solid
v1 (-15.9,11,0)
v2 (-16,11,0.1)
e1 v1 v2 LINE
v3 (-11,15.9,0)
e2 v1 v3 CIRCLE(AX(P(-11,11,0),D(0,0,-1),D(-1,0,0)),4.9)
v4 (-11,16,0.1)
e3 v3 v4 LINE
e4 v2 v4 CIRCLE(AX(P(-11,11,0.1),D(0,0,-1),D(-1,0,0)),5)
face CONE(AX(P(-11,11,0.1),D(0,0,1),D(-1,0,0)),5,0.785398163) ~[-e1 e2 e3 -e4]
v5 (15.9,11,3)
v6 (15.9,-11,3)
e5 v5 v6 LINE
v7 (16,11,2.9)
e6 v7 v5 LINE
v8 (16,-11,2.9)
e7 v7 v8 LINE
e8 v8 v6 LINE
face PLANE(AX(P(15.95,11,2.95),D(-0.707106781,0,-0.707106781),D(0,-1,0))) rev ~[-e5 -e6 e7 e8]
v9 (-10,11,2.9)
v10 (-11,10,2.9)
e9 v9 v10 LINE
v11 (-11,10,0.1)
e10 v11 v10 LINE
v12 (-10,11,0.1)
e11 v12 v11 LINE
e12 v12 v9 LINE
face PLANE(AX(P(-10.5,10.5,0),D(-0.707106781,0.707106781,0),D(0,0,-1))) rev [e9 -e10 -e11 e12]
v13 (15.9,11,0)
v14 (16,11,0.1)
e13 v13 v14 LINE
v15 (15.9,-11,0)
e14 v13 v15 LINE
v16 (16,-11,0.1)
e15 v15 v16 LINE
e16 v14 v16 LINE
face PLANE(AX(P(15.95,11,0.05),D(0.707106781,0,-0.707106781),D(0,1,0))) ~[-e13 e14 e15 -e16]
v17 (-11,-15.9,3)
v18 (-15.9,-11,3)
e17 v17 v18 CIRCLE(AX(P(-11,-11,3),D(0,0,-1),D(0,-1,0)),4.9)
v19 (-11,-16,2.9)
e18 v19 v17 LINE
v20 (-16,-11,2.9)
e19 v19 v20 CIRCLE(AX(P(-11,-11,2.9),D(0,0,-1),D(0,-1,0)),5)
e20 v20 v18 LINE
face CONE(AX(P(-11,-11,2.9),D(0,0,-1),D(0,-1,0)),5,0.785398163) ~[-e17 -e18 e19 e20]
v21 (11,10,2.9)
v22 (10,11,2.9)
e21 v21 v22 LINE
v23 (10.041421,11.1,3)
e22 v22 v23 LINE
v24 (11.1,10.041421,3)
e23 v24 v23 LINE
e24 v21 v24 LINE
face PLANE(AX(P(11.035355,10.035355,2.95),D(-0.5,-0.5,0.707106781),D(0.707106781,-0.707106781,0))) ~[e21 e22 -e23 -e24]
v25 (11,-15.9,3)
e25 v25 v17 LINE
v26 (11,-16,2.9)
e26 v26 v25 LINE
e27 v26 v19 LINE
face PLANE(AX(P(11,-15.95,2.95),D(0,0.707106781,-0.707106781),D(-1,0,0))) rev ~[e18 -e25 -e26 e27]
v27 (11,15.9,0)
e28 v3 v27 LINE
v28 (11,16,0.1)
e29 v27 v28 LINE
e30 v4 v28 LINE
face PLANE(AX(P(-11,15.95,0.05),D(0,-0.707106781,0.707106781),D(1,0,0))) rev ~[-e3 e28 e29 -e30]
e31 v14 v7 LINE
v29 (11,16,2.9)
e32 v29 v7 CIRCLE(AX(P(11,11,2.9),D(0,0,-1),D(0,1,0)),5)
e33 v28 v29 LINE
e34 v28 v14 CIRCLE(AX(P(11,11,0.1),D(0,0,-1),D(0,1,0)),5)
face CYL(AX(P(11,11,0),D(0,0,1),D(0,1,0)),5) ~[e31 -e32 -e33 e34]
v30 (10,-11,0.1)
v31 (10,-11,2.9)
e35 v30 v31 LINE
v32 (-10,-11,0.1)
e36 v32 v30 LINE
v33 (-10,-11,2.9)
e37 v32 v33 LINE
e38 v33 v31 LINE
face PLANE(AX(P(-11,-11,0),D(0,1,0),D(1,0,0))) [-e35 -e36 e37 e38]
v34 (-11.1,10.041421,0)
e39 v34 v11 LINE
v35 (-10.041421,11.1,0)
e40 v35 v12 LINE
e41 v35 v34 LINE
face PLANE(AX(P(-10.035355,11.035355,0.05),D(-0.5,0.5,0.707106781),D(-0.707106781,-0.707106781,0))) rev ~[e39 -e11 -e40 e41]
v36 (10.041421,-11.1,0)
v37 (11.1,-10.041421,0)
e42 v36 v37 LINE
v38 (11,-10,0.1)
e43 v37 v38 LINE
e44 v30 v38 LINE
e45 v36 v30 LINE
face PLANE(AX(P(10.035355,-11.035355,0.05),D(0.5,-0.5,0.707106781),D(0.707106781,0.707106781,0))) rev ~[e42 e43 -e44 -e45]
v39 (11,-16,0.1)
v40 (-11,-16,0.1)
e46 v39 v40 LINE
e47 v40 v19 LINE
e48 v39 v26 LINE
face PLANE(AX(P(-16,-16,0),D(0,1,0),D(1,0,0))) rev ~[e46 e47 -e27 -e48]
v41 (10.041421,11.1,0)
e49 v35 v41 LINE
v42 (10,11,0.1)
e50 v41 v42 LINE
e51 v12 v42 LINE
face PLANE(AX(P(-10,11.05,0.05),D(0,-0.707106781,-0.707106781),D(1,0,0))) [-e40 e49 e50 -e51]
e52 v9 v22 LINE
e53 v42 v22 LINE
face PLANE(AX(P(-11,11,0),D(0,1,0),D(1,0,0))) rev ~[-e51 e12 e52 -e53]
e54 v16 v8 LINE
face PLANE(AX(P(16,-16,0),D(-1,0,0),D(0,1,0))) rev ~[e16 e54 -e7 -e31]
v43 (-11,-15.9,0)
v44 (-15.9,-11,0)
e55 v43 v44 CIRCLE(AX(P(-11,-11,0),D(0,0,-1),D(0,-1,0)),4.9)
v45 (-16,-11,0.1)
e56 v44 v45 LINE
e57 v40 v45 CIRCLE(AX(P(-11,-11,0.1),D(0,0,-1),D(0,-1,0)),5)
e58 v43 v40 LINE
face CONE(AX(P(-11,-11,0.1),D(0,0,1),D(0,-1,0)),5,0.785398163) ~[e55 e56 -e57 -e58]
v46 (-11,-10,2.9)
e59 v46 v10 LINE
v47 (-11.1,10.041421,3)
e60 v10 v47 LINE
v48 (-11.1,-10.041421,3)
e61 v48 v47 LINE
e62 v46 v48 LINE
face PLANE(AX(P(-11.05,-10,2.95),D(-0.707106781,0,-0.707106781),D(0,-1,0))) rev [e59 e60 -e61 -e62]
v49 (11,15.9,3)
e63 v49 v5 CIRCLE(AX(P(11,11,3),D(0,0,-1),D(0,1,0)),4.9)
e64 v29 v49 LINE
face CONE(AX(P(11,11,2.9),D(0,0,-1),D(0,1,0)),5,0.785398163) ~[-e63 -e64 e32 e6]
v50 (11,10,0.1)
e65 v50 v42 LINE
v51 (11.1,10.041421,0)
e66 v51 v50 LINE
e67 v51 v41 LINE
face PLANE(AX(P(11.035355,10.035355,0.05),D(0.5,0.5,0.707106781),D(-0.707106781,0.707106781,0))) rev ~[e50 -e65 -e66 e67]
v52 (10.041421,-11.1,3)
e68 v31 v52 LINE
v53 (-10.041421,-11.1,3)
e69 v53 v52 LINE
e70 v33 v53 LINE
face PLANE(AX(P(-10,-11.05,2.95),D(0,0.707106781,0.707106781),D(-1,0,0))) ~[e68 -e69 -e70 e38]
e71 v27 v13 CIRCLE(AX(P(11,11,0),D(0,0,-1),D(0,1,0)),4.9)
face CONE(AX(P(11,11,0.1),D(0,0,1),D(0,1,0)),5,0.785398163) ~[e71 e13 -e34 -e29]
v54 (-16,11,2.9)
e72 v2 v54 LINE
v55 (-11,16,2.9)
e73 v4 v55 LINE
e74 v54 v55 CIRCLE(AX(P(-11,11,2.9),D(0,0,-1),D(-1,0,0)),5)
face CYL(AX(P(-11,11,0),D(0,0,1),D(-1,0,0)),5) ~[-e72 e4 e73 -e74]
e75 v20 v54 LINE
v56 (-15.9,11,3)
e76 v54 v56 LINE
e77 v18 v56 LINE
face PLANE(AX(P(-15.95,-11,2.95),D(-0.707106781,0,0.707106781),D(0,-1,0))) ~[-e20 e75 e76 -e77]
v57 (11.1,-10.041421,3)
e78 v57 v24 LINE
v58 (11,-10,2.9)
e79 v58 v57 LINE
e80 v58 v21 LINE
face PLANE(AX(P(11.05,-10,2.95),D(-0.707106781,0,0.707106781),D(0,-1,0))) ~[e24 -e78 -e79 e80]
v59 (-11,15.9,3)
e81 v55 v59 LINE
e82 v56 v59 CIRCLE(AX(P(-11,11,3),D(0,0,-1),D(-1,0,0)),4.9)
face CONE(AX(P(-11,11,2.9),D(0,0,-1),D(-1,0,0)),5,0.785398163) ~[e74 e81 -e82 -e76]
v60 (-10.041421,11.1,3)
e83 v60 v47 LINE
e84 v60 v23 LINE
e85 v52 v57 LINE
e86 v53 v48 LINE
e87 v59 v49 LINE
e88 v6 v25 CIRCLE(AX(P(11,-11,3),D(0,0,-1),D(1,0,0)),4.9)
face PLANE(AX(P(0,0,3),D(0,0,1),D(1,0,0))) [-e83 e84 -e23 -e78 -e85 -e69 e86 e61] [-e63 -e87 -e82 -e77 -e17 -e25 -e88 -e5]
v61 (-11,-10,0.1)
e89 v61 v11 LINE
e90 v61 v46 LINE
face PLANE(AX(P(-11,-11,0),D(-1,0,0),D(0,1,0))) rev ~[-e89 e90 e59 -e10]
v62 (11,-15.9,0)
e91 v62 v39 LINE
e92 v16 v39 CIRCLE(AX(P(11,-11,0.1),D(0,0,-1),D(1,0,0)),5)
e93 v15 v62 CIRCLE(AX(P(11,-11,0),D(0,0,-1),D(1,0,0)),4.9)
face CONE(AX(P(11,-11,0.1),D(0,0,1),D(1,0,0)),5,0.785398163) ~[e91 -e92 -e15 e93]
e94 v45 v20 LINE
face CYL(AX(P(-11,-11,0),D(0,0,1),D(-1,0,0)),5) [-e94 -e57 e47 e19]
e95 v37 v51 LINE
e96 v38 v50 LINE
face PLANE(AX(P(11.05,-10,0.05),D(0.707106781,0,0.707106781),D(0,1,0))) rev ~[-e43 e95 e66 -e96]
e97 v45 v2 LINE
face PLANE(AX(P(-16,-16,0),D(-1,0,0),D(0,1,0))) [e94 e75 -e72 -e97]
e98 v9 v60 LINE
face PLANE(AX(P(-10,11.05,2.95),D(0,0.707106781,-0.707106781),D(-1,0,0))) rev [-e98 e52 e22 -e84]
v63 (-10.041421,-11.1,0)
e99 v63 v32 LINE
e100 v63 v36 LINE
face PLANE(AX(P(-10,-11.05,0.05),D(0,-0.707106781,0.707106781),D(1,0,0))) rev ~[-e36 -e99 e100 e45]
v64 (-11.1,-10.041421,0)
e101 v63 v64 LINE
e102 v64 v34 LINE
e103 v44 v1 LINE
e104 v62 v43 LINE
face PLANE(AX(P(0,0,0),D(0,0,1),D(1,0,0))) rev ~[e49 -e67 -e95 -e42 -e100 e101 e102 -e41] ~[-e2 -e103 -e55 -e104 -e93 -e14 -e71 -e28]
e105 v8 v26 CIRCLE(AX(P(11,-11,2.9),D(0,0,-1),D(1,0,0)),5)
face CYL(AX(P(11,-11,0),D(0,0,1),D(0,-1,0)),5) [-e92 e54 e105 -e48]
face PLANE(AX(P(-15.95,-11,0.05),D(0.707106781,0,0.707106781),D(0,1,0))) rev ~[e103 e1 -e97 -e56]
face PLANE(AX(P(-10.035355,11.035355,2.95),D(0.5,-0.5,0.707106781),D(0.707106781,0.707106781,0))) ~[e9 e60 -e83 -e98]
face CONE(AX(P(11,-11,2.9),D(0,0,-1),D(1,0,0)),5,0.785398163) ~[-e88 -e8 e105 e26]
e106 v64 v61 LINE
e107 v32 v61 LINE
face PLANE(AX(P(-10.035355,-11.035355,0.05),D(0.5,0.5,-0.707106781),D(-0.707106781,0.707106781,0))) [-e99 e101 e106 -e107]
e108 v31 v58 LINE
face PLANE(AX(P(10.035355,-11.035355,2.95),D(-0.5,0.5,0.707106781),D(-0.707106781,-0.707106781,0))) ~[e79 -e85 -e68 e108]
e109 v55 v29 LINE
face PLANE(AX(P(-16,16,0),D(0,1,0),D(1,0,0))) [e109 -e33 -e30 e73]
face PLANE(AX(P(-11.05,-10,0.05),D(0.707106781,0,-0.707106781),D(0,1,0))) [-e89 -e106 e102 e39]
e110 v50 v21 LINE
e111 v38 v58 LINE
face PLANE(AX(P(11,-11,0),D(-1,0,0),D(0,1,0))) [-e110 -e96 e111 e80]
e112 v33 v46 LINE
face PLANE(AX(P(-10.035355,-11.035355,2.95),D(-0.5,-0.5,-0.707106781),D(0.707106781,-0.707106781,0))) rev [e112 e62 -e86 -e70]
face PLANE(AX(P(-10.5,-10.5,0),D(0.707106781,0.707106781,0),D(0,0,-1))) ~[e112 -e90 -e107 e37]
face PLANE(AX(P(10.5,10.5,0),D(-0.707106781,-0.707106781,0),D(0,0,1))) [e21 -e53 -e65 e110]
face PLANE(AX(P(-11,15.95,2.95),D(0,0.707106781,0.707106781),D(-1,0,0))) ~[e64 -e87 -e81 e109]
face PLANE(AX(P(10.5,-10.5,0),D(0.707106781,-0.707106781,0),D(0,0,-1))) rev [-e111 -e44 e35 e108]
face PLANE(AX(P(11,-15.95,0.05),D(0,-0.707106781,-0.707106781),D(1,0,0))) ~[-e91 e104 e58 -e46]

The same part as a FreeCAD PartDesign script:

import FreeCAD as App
import Part
import Sketcher


def edges_at(feature, points):
    """Names of the edges that pass closest to the given points."""
    edges = feature.Shape.Edges
    near = lambda p: min(range(len(edges)), key=lambda i: edges[i].distToShape(Part.Vertex(*p))[0])
    return sorted({f"Edge{near(p) + 1}" for p in points})


def add_polygon(sketch, points):
    """Adds a closed chain of lines whose ends are joined by coincident constraints."""
    first, n = sketch.GeometryCount, len(points)
    for a, b in zip(points, points[1:] + points[:1]):
        sketch.addGeometry(Part.LineSegment(App.Vector(*a, 0), App.Vector(*b, 0)), False)
    for i in range(n):
        sketch.addConstraint(Sketcher.Constraint("Coincident", first + i, 2, first + (i + 1) % n, 1))

doc = App.newDocument("Part")
body = doc.addObject("PartDesign::Body", "Body")

sketch1 = body.newObject("Sketcher::SketchObject", "Sketch")
sketch1.AttachmentSupport = (doc.getObject("XY_Plane"), [""])
sketch1.MapMode = "FlatFace"
add_polygon(sketch1, [(-16, 16), (-16, -16), (16, -16), (16, 16)])
add_polygon(sketch1, [(11, -11), (-11, -11), (-11, 11), (11, 11)])
sketch1.addConstraint(Sketcher.Constraint("Vertical", 0))
sketch1.addConstraint(Sketcher.Constraint("Horizontal", 1))
sketch1.addConstraint(Sketcher.Constraint("Vertical", 2))
sketch1.addConstraint(Sketcher.Constraint("Horizontal", 3))
sketch1.addConstraint(Sketcher.Constraint("Horizontal", 4))
sketch1.addConstraint(Sketcher.Constraint("Vertical", 5))
sketch1.addConstraint(Sketcher.Constraint("Horizontal", 6))
sketch1.addConstraint(Sketcher.Constraint("Vertical", 7))
sketch1.addConstraint(Sketcher.Constraint("Symmetric", 0, 2, 2, 2, -1, 1))
sketch1.addConstraint(Sketcher.Constraint("Symmetric", 4, 2, 6, 2, -1, 1))
sketch1.addConstraint(Sketcher.Constraint("Equal", 3, 0))
sketch1.addConstraint(Sketcher.Constraint("Equal", 6, 5))
sketch1.addConstraint(Sketcher.Constraint("DistanceX", 1, 1, 1, 2, 32.0))
sketch1.addConstraint(Sketcher.Constraint("DistanceX", 4, 2, 4, 1, 22.0))
pad1 = body.newObject("PartDesign::Pad", "Pad")
pad1.Profile = sketch1
pad1.Length = 3
doc.recompute()

chamfer = body.newObject("PartDesign::Chamfer", "Chamfer")
chamfer.Base = (pad1, edges_at(pad1, [
    (-11, 11, 1.5),
    (-11, -11, 1.5),
    (11, 11, 1.5),
    (11, -11, 1.5),
]))
chamfer.ChamferType = "Two distances"
chamfer.Size = 1
chamfer.Size2 = 1
doc.recompute()

fillet = body.newObject("PartDesign::Fillet", "Fillet")
fillet.Base = (chamfer, edges_at(chamfer, [
    (16, 16, 1.5),
    (16, -16, 1.5),
    (-16, -16, 1.5),
    (-16, 16, 1.5),
]))
fillet.Radius = 5
doc.recompute()

chamfer2 = body.newObject("PartDesign::Chamfer", "Chamfer001")
chamfer2.Base = (fillet, edges_at(fillet, [
    (0, 16, 3),
    (14.536, 14.536, 3),
    (-14.536, 14.536, 3),
    (16, 0, 3),
    (-16, 0, 3),
    (14.536, -14.536, 3),
    (-14.536, -14.536, 3),
    (0, -16, 3),
    (-11, 0, 3),
    (-10.5, -10.5, 3),
    (-10.5, 10.5, 3),
    (0, -11, 3),
    (0, 11, 3),
    (10.5, -10.5, 3),
    (10.5, 10.5, 3),
    (11, 0, 3),
    (0, 16, 0),
    (14.536, 14.536, 0),
    (-14.536, 14.536, 0),
    (16, 0, 0),
    (-16, 0, 0),
    (14.536, -14.536, 0),
    (-14.536, -14.536, 0),
    (0, -16, 0),
    (-11, 0, 0),
    (-10.5, -10.5, 0),
    (-10.5, 10.5, 0),
    (0, -11, 0),
    (0, 11, 0),
    (10.5, -10.5, 0),
    (10.5, 10.5, 0),
    (11, 0, 0),
]))
chamfer2.Size = 0.1

doc.recompute()
